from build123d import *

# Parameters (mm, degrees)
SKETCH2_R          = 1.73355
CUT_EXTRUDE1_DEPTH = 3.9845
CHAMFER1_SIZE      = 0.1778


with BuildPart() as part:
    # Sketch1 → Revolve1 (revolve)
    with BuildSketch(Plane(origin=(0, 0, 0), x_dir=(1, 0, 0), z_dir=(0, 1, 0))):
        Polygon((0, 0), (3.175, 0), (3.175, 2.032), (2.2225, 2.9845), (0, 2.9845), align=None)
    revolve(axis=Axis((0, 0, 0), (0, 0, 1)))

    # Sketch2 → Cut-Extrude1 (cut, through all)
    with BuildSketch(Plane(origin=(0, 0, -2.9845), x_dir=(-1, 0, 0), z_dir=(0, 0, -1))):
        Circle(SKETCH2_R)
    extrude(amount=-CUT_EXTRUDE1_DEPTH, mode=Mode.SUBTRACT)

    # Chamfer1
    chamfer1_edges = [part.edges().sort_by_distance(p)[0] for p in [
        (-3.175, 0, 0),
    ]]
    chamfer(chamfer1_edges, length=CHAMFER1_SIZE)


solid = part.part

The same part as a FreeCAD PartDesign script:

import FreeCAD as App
import Part
import Sketcher

V = App.Vector
Q = App.Units.Quantity


def edges_at(feature, points):
    """Names of the edges that pass closest to the given points."""
    edges = feature.Shape.Edges
    near = lambda p: min(range(len(edges)), key=lambda i: edges[i].distToShape(Part.Vertex(*p))[0])
    return sorted({f"Edge{near(p) + 1}" for p in points})


def add_polygon(sketch, points):
    """Adds a closed chain of lines whose ends are joined by coincident constraints."""
    first, n = sketch.GeometryCount, len(points)
    for a, b in zip(points, points[1:] + points[:1]):
        sketch.addGeometry(Part.LineSegment(App.Vector(*a, 0), App.Vector(*b, 0)), False)
    for i in range(n):
        sketch.addConstraint(Sketcher.Constraint("Coincident", first + i, 2, first + (i + 1) % n, 1))

doc = App.newDocument("Part")
body = doc.addObject("PartDesign::Body", "Body")

# Sketch on XZ plane
sketch1 = doc.addObject("Sketcher::SketchObject", "Sketch")
body.addObject(sketch1)
sketch1.AttachmentSupport = (doc.XZ_Plane, [""])
sketch1.MapMode = "FlatFace"
add_polygon(sketch1, [(0, 0), (3.175, 0), (3.175, -2.032), (2.2225, -2.9845), (0, -2.9845)])  # lines 0-4
sketch1.addConstraint(Sketcher.Constraint("Horizontal", 0))
sketch1.addConstraint(Sketcher.Constraint("Vertical", 1))
sketch1.addConstraint(Sketcher.Constraint("Horizontal", 3))
sketch1.addConstraint(Sketcher.Constraint("Vertical", 4))
sketch1.addConstraint(Sketcher.Constraint("Coincident", 4, 2, -1, 1))
sketch1.addConstraint(Sketcher.Constraint("Angle", 2, Q("-135 deg")))
sketch1.addConstraint(Sketcher.Constraint("DistanceY", 1, 2, 1, 1, Q("0.08 in")))
sketch1.addConstraint(Sketcher.Constraint("DistanceX", 0, 1, 0, 2, Q("0.125 in")))
sketch1.addConstraint(Sketcher.Constraint("DistanceX", 3, 2, 3, 1, Q("0.0875 in")))
revolution = doc.addObject("PartDesign::Revolution", "Revolution")
body.addObject(revolution)
revolution.Profile = sketch1
revolution.ReferenceAxis = (sketch1, ["V_Axis"])
revolution.Angle = 360

# Sketch on XY plane
sketch2 = doc.addObject("Sketcher::SketchObject", "Sketch001")
body.addObject(sketch2)
sketch2.AttachmentSupport = (doc.XY_Plane, [""])
sketch2.MapMode = "FlatFace"
sketch2.AttachmentOffset = App.Placement(V(0, 0, -0.1175 * 25.4), App.Rotation())
sketch2.addGeometry(Part.Circle(V(0, 0, 0), V(0, 0, 1), 1.73355), False)
sketch2.addConstraint(Sketcher.Constraint("Coincident", 0, 3, -1, 1))
sketch2.addConstraint(Sketcher.Constraint("Diameter", 0, Q("0.1365 in")))
pocket1 = doc.addObject("PartDesign::Pocket", "Pocket")
body.addObject(pocket1)
pocket1.Profile = sketch2
pocket1.Type = "ThroughAll"
pocket1.Reversed = True
doc.recompute()

chamfer = doc.addObject("PartDesign::Chamfer", "Chamfer")
body.addObject(chamfer)
chamfer.Base = (pocket1, edges_at(pocket1, [(-3.175, 0, 0)]))
chamfer.Size = Q("0.007 in")

doc.recompute()
